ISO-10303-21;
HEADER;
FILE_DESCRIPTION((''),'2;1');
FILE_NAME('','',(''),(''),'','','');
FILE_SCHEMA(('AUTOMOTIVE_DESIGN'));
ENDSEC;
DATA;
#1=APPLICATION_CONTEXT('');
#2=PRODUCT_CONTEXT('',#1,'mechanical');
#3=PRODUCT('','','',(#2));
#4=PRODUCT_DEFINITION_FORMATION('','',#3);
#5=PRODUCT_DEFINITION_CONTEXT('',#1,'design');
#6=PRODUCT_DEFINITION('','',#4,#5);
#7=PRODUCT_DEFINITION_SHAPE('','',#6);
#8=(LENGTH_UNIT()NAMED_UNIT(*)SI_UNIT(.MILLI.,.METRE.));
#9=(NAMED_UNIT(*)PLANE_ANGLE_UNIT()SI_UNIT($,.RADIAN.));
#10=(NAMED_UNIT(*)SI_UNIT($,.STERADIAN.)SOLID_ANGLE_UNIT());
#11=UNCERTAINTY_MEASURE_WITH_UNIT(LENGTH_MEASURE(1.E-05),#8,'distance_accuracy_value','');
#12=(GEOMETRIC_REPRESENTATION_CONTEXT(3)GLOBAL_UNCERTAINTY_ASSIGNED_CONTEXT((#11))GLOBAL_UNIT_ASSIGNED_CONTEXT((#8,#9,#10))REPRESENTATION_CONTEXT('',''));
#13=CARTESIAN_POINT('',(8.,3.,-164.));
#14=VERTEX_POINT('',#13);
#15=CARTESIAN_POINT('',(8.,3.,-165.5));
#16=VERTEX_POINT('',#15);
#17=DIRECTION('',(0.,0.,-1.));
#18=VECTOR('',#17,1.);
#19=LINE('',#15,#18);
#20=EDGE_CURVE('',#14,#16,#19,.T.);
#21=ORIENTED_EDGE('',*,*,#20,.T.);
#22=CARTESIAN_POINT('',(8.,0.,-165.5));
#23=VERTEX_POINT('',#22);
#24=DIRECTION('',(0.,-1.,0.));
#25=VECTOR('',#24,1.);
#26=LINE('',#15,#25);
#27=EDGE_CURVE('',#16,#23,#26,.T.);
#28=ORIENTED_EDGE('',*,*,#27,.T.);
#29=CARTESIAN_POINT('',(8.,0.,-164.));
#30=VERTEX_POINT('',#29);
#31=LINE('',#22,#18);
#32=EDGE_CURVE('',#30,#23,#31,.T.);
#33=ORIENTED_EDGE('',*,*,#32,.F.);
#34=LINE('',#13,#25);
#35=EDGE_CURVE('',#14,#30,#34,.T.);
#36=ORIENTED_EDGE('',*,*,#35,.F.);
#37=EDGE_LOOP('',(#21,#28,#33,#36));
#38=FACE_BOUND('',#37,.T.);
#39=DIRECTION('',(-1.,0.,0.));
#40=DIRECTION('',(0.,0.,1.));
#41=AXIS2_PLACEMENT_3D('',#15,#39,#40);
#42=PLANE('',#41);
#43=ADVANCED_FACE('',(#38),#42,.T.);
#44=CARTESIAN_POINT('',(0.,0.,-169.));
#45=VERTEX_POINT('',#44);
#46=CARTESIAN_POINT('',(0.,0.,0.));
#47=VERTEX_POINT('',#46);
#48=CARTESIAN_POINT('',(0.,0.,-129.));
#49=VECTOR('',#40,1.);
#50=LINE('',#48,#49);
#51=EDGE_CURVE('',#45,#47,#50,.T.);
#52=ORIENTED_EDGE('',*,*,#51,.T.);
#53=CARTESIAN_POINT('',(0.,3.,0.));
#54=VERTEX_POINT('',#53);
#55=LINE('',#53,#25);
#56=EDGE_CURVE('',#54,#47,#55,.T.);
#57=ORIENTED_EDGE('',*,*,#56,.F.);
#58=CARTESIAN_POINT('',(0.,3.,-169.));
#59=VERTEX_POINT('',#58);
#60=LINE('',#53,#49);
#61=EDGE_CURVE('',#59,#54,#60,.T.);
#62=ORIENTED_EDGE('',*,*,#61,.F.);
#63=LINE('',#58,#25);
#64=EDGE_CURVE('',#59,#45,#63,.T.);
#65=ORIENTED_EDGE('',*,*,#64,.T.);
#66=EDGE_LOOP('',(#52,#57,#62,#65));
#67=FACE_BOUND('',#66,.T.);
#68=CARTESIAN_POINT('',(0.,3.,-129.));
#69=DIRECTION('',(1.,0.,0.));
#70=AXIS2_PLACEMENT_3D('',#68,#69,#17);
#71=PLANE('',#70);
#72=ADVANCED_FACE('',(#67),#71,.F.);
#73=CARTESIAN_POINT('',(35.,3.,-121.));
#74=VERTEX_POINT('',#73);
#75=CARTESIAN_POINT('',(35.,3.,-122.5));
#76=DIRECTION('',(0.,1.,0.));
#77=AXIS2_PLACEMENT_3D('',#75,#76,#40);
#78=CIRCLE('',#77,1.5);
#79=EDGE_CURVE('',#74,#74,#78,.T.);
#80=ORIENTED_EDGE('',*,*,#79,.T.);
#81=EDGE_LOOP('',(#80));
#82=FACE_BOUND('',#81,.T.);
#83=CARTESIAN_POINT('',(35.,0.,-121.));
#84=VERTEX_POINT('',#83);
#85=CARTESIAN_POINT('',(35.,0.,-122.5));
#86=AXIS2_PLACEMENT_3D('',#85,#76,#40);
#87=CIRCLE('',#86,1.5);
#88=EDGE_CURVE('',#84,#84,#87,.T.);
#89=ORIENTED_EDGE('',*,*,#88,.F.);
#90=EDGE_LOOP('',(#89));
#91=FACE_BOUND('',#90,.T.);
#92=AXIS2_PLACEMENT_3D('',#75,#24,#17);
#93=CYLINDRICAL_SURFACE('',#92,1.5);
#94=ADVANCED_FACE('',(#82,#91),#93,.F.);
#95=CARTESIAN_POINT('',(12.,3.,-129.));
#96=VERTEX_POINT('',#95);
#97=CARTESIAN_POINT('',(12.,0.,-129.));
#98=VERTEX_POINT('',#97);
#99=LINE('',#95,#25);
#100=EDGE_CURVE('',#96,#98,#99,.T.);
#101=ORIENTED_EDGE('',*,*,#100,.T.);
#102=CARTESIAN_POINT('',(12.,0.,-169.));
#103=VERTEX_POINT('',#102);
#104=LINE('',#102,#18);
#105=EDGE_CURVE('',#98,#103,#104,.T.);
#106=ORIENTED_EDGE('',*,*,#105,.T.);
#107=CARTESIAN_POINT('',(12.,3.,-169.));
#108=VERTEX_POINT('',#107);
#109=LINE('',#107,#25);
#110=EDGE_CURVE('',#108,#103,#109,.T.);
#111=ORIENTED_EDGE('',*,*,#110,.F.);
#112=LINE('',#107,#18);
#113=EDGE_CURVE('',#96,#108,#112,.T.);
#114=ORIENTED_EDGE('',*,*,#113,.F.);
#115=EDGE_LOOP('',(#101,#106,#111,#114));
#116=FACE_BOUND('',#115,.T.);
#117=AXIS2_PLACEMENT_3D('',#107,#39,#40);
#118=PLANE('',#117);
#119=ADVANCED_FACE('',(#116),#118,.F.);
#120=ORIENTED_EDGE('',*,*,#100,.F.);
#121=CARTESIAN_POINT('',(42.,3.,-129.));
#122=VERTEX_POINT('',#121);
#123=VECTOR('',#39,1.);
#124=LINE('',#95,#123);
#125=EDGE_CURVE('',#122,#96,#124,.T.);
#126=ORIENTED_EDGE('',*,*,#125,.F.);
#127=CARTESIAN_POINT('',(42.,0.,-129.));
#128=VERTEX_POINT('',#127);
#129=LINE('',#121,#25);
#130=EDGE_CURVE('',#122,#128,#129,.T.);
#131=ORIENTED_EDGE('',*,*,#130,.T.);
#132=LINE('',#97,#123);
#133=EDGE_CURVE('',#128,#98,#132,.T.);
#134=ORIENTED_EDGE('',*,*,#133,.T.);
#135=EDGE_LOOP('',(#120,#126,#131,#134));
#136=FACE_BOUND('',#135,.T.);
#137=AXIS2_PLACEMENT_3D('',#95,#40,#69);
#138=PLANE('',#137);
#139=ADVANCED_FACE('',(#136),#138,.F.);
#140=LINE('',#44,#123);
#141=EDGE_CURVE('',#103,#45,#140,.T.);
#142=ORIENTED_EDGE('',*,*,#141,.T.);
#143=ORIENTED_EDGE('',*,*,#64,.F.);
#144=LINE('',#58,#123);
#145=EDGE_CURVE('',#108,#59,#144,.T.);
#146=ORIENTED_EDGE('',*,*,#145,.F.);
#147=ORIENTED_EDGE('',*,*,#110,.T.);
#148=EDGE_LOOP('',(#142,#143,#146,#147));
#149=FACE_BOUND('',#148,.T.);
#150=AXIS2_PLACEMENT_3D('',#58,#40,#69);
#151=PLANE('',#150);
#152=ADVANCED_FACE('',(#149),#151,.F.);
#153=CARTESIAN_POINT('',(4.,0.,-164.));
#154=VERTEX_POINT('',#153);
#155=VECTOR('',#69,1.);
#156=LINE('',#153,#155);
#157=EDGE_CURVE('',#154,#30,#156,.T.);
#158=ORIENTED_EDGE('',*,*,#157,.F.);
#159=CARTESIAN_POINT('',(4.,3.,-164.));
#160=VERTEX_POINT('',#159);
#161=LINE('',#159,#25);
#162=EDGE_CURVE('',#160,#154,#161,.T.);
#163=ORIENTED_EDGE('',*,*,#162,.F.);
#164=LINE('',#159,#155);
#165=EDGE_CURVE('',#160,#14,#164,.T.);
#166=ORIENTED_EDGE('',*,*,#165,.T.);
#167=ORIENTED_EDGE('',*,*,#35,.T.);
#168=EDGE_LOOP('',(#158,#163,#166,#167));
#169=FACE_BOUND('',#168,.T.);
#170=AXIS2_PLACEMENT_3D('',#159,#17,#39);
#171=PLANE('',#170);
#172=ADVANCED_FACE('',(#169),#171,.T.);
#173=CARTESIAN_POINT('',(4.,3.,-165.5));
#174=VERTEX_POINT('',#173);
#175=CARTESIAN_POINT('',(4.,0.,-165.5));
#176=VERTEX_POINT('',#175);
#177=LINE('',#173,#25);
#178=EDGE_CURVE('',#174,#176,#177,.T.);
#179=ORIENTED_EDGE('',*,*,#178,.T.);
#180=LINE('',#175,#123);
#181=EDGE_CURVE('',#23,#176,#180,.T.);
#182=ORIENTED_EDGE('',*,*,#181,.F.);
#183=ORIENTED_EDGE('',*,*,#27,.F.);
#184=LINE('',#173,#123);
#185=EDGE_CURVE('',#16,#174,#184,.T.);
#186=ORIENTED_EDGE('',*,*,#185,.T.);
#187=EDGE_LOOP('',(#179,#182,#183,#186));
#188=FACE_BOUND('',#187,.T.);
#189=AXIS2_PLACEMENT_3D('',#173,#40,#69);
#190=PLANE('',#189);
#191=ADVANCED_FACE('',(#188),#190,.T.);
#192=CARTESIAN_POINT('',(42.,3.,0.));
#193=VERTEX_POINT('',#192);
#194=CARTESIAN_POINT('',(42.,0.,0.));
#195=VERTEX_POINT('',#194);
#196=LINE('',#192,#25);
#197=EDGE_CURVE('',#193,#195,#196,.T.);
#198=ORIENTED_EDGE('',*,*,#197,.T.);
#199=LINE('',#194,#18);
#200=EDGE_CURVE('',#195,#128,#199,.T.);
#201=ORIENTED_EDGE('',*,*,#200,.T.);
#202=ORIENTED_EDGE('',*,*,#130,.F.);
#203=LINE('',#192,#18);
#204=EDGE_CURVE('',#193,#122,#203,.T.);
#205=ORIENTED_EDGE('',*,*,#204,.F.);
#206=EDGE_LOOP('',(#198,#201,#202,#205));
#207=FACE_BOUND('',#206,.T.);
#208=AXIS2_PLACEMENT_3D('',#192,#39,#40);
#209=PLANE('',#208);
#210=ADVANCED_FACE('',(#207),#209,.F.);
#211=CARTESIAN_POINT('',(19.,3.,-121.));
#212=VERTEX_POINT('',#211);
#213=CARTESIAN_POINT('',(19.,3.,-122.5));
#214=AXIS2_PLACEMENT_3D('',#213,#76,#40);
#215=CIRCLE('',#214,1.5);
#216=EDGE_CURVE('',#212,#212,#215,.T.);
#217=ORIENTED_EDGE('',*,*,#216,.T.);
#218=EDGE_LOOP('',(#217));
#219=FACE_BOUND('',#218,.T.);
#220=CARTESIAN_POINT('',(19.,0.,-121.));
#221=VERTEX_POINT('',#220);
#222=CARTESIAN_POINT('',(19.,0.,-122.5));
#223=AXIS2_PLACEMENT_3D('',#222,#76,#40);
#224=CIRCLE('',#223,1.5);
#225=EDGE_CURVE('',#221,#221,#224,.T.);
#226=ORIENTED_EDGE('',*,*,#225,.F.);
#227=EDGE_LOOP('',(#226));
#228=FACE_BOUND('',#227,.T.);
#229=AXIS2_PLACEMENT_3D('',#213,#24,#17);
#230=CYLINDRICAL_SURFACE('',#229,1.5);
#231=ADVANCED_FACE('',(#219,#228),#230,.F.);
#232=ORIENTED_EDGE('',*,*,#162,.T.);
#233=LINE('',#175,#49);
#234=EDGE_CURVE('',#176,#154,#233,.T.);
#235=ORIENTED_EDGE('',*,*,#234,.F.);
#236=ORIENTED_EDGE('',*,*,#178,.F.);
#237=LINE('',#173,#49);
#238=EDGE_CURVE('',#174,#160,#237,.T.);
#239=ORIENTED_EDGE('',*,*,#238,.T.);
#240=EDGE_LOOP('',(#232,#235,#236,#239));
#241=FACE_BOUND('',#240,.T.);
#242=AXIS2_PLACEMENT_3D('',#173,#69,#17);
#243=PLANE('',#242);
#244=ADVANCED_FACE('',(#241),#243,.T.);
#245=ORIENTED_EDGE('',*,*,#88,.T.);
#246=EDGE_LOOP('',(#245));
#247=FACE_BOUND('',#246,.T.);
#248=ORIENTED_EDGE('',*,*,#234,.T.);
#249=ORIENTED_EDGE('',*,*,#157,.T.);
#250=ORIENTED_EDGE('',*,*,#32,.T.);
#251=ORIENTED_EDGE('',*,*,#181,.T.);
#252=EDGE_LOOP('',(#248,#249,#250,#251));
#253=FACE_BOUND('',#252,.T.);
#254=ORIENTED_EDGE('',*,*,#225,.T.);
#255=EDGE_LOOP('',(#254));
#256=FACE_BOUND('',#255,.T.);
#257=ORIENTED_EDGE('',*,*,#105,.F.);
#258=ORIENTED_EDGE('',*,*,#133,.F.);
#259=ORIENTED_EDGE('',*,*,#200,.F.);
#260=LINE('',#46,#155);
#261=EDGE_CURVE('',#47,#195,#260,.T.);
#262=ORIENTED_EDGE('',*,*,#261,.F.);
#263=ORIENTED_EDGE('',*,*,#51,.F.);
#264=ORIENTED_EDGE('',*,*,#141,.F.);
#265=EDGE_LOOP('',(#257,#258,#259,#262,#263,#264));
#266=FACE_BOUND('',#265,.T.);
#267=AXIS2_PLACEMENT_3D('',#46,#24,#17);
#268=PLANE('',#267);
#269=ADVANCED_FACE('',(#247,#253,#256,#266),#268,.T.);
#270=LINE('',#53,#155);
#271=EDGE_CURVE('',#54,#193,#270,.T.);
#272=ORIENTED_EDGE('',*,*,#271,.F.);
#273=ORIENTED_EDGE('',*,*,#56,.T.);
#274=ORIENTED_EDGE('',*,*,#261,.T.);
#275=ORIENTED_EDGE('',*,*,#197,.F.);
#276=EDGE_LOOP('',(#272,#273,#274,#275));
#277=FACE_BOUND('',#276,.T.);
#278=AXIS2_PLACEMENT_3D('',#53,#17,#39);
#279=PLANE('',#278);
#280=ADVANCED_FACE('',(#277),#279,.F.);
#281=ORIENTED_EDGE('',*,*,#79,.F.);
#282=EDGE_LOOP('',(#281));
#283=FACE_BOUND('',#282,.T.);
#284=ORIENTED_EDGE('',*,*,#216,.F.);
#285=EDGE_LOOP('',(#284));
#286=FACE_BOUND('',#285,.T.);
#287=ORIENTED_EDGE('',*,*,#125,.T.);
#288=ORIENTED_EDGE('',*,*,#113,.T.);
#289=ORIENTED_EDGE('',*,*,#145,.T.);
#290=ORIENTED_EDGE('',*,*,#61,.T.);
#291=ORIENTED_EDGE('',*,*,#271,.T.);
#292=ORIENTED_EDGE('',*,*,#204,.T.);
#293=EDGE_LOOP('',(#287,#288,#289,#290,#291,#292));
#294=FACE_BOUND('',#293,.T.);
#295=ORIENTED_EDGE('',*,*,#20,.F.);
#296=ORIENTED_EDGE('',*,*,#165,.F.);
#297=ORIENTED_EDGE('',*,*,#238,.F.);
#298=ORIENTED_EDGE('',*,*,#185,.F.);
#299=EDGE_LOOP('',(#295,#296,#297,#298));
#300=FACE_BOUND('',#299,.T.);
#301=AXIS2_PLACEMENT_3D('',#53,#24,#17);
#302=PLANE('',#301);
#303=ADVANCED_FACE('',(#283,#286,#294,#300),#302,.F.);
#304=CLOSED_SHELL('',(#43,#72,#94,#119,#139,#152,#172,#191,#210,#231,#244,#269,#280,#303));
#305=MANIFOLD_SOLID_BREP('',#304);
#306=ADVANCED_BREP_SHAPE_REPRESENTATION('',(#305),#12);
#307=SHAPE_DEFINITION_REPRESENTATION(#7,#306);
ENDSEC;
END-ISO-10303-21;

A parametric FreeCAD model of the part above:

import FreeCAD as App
import Part
import Sketcher

doc = App.newDocument("Part")
body = doc.addObject("PartDesign::Body", "Body")

sketch1 = doc.addObject("Sketcher::SketchObject", "Sketch")
body.addObject(sketch1)
sketch1.AttachmentSupport = (doc.XZ_Plane, [""])
sketch1.MapMode = "FlatFace"
sketch1.addGeometry([
    Part.LineSegment(App.Vector(0, -169, 0), App.Vector(0, 0, 0)),
    Part.LineSegment(App.Vector(0, 0, 0), App.Vector(42, 0, 0)),
    Part.LineSegment(App.Vector(42, 0, 0), App.Vector(42, -129, 0)),
    Part.LineSegment(App.Vector(42, -129, 0), App.Vector(12, -129, 0)),
    Part.LineSegment(App.Vector(12, -129, 0), App.Vector(12, -169, 0)),
    Part.LineSegment(App.Vector(12, -169, 0), App.Vector(0, -169, 0)),
    Part.Circle(App.Vector(35, -122.5, 0), App.Vector(0, 0, 1), 1.5),
    Part.Circle(App.Vector(19, -122.5, 0), App.Vector(0, 0, 1), 1.5),
    Part.LineSegment(App.Vector(4, -164, 0), App.Vector(4, -165.5, 0)),
    Part.LineSegment(App.Vector(4, -165.5, 0), App.Vector(8, -165.5, 0)),
    Part.LineSegment(App.Vector(8, -165.5, 0), App.Vector(8, -164, 0)),
    Part.LineSegment(App.Vector(8, -164, 0), App.Vector(4, -164, 0)),
], False)
sketch1.addConstraint([
    Sketcher.Constraint("Coincident", 0, 2, 1, 1),
    Sketcher.Constraint("Coincident", 1, 2, 2, 1),
    Sketcher.Constraint("Coincident", 2, 2, 3, 1),
    Sketcher.Constraint("Coincident", 3, 2, 4, 1),
    Sketcher.Constraint("Coincident", 4, 2, 5, 1),
    Sketcher.Constraint("Coincident", 5, 2, 0, 1),
    Sketcher.Constraint("Coincident", 8, 2, 9, 1),
    Sketcher.Constraint("Coincident", 9, 2, 10, 1),
    Sketcher.Constraint("Coincident", 10, 2, 11, 1),
    Sketcher.Constraint("Coincident", 11, 2, 8, 1),
    Sketcher.Constraint("Vertical", 0),
    Sketcher.Constraint("Horizontal", 1),
    Sketcher.Constraint("Vertical", 2),
    Sketcher.Constraint("Horizontal", 3),
    Sketcher.Constraint("Vertical", 4),
    Sketcher.Constraint("Horizontal", 5),
    Sketcher.Constraint("Vertical", 8),
    Sketcher.Constraint("Horizontal", 9),
    Sketcher.Constraint("Vertical", 10),
    Sketcher.Constraint("Horizontal", 11),
    Sketcher.Constraint("Coincident", 0, 2, -1, 1),
    Sketcher.Constraint("Equal", 6, 7),
    Sketcher.Constraint("Horizontal", 6, 3, 7, 3),
    Sketcher.Constraint("Diameter", 6, 3.0),
    Sketcher.Constraint("DistanceX", 1, 1, 1, 2, 42.0),
    Sketcher.Constraint("DistanceX", 3, 2, 3, 1, 30.0),
    Sketcher.Constraint("DistanceX", 9, 1, 9, 2, 4.0),
    Sketcher.Constraint("DistanceY", 0, 1, 0, 2, 169.0),
    Sketcher.Constraint("DistanceY", 2, 2, 2, 1, 129.0),
    Sketcher.Constraint("DistanceY", 8, 2, 8, 1, 1.5),
    Sketcher.Constraint("DistanceX", -1, 1, 6, 3, 35.0),
    Sketcher.Constraint("DistanceX", -1, 1, 7, 3, 19.0),
    Sketcher.Constraint("DistanceX", -1, 1, 8, 2, 4.0),
    Sketcher.Constraint("DistanceY", 10, 2, -1, 1, 164.0),
    Sketcher.Constraint("DistanceY", 8, 2, 7, 3, 43.0),
])
pad1 = doc.addObject("PartDesign::Pad", "Pad")
body.addObject(pad1)
pad1.Profile = sketch1
pad1.Length = 3
pad1.Reversed = True

doc.recompute()
